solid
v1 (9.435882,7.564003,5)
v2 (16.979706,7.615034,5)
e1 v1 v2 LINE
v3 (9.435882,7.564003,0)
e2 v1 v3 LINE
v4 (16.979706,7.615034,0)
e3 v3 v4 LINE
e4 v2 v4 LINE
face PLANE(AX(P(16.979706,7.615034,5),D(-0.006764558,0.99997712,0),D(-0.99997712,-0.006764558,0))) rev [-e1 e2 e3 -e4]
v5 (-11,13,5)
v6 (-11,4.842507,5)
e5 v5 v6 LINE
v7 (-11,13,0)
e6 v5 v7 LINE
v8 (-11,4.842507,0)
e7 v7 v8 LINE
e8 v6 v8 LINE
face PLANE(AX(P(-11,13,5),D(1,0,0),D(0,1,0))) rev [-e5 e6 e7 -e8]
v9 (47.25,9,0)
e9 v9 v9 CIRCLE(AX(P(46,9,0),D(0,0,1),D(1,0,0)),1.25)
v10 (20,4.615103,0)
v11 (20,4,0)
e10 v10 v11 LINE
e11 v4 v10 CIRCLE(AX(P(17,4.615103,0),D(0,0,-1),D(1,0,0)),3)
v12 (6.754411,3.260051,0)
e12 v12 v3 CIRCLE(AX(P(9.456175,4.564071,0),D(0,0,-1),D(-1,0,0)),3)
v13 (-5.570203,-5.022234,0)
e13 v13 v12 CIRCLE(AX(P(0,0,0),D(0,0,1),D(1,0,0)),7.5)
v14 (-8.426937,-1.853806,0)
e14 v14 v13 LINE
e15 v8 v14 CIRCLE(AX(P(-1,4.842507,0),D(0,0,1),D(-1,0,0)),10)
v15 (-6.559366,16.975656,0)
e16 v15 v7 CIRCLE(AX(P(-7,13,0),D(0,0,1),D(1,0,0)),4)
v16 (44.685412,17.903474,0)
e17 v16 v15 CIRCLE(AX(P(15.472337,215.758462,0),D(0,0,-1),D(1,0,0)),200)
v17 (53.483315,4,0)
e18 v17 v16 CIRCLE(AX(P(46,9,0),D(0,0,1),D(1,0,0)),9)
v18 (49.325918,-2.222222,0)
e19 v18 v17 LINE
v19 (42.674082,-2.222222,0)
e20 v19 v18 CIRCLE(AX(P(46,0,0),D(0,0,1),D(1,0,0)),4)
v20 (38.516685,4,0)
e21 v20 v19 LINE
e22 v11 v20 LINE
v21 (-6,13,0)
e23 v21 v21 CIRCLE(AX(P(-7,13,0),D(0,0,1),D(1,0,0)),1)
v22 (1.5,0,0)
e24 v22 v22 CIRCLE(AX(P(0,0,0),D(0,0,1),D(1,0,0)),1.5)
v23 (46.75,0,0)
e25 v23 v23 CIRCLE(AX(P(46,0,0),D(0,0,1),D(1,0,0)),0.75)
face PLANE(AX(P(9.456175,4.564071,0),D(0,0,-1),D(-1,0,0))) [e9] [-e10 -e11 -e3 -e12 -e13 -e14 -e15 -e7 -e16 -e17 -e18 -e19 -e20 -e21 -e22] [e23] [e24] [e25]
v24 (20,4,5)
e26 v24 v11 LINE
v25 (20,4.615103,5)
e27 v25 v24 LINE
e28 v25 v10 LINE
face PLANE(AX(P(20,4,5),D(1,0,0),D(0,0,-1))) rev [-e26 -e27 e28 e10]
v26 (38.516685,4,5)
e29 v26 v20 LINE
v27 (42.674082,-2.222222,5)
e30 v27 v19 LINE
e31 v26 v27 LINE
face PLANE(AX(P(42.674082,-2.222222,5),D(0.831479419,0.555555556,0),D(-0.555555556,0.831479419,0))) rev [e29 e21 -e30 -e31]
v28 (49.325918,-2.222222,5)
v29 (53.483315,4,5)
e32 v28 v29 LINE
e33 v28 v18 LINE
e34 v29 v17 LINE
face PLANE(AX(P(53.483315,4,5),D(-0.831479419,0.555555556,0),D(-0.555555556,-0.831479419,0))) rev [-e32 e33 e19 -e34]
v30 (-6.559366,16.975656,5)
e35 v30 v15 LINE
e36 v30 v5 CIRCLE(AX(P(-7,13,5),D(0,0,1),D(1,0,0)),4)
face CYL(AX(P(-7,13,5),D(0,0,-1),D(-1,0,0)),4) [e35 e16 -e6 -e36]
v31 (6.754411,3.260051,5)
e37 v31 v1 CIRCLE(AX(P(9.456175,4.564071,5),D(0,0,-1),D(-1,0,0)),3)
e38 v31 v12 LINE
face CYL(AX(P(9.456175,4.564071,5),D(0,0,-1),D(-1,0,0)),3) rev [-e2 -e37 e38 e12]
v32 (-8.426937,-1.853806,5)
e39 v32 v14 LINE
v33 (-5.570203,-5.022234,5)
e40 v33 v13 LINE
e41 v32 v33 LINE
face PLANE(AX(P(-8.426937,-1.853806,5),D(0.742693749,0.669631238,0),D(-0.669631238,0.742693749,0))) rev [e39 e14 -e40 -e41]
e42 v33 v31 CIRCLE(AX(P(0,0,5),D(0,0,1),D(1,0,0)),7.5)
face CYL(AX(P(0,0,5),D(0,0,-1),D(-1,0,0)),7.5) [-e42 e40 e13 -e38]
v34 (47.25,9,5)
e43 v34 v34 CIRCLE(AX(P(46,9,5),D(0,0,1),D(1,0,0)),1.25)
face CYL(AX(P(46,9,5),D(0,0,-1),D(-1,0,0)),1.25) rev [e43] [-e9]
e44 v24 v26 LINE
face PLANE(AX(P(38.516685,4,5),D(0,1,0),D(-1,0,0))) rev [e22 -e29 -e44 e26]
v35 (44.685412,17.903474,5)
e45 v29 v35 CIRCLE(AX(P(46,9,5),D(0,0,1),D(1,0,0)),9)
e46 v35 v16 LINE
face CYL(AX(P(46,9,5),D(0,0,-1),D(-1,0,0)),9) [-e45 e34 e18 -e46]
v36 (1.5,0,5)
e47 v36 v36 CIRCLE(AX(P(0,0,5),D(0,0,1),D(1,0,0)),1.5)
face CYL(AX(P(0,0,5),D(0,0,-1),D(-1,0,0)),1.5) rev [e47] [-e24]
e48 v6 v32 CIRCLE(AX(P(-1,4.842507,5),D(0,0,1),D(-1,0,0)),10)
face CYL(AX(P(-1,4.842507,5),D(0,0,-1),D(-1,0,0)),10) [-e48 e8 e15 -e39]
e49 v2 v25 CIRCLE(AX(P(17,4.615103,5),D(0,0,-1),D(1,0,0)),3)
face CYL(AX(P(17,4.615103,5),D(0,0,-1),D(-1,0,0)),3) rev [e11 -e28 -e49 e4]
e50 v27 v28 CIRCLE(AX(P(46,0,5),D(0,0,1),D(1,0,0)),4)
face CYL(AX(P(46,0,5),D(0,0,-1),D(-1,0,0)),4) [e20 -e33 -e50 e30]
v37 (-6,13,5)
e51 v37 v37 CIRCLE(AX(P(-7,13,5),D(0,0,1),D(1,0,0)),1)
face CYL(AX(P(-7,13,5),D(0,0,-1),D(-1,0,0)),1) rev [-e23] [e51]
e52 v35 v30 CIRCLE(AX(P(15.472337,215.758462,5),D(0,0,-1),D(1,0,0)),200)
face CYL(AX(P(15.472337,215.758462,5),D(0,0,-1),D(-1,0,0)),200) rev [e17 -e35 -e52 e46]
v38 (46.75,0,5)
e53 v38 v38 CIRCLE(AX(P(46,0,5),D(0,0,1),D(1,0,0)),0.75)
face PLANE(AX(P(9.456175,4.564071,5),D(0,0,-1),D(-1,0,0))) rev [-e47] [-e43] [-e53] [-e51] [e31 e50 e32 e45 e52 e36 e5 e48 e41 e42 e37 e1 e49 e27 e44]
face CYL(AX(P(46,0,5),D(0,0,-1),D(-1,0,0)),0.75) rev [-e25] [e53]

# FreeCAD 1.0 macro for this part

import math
import FreeCAD as App
import Part
import Sketcher
Q = App.Units.Quantity

doc = App.newDocument("Part")
body = doc.addObject("PartDesign::Body", "Body")

# Sketch on XY plane
sketch1 = body.newObject("Sketcher::SketchObject", "Sketch")
sketch1.AttachmentSupport = (doc.getObject("XY_Plane"), [""])
sketch1.MapMode = "FlatFace"
sketch1.addGeometry([
    Part.LineSegment(App.Vector(49.3, -2.2, 0), App.Vector(53.5, 4, 0)),  # 0
    Part.ArcOfCircle(Part.Circle(App.Vector(46, 9, 0), App.Vector(0, 0, 1), 9), math.radians(-34), math.radians(98)),  # 1
    Part.ArcOfCircle(Part.Circle(App.Vector(15.5, 215.8, 0), App.Vector(0, 0, 1), 200), math.radians(-96.32), math.radians(-81.6)),  # 2
    Part.ArcOfCircle(Part.Circle(App.Vector(-7, 13, 0), App.Vector(0, 0, 1), 4), math.radians(84), math.radians(180)),  # 3
    Part.LineSegment(App.Vector(-11, 13, 0), App.Vector(-11, 4.8, 0)),  # 4
    Part.ArcOfCircle(Part.Circle(App.Vector(-1, 4.8, 0), App.Vector(0, 0, 1), 10), math.radians(180), math.radians(222)),  # 5
    Part.LineSegment(App.Vector(-8.4, -1.9, 0), App.Vector(-5.6, -5, 0)),  # 6
    Part.ArcOfCircle(Part.Circle(App.Vector(0, 0, 0), App.Vector(0, 0, 1), 7.5), math.radians(-138), math.radians(26)),  # 7
    Part.ArcOfCircle(Part.Circle(App.Vector(9.5, 4.6, 0), App.Vector(0, 0, 1), 3), math.radians(90), math.radians(206)),  # 8
    Part.LineSegment(App.Vector(9.4, 7.6, 0), App.Vector(17, 7.6, 0)),  # 9
    Part.ArcOfCircle(Part.Circle(App.Vector(17, 4.6, 0), App.Vector(0, 0, 1), 3), math.radians(0), math.radians(90)),  # 10
    Part.LineSegment(App.Vector(20, 4.6, 0), App.Vector(20, 4, 0)),  # 11
    Part.LineSegment(App.Vector(20, 4, 0), App.Vector(38.5, 4, 0)),  # 12
    Part.LineSegment(App.Vector(38.5, 4, 0), App.Vector(42.7, -2.2, 0)),  # 13
    Part.ArcOfCircle(Part.Circle(App.Vector(46, 0, 0), App.Vector(0, 0, 1), 4), math.radians(-146), math.radians(-34)),  # 14
    Part.Circle(App.Vector(46, 0, 0), App.Vector(0, 0, 1), 0.8),  # 15
    Part.Circle(App.Vector(0, 0, 0), App.Vector(0, 0, 1), 1.5),  # 16
    Part.Circle(App.Vector(46, 9, 0), App.Vector(0, 0, 1), 1.2),  # 17
    Part.Circle(App.Vector(-7, 13, 0), App.Vector(0, 0, 1), 1),  # 18
], False)
sketch1.addConstraint([
    Sketcher.Constraint("Tangent", 0, 2, 1, 1),
    Sketcher.Constraint("Tangent", 1, 2, 2, 2),
    Sketcher.Constraint("Tangent", 2, 1, 3, 1),
    Sketcher.Constraint("Tangent", 3, 2, 4, 1),
    Sketcher.Constraint("Tangent", 4, 2, 5, 1),
    Sketcher.Constraint("Tangent", 5, 2, 6, 1),
    Sketcher.Constraint("Tangent", 6, 2, 7, 1),
    Sketcher.Constraint("Tangent", 7, 2, 8, 2),
    Sketcher.Constraint("Tangent", 8, 1, 9, 1),
    Sketcher.Constraint("Tangent", 9, 2, 10, 2),
    Sketcher.Constraint("Tangent", 10, 1, 11, 1),
    Sketcher.Constraint("Coincident", 11, 2, 12, 1),
    Sketcher.Constraint("Coincident", 12, 2, 13, 1),
    Sketcher.Constraint("Tangent", 13, 2, 14, 1),
    Sketcher.Constraint("Tangent", 14, 2, 0, 1),
    Sketcher.Constraint("Vertical", 4),
    Sketcher.Constraint("Vertical", 11),
    Sketcher.Constraint("Horizontal", 12),
    Sketcher.Constraint("Coincident", 7, 3, -1, 1),
    Sketcher.Constraint("Coincident", 16, 3, -1, 1),
    Sketcher.Constraint("Coincident", 15, 3, 14, 3),
    Sketcher.Constraint("Coincident", 17, 3, 1, 3),
    Sketcher.Constraint("Coincident", 18, 3, 3, 3),
    Sketcher.Constraint("Equal", 8, 10),
    Sketcher.Constraint("Equal", 3, 14),
    Sketcher.Constraint("PointOnObject", 14, 3, -1),
    Sketcher.Constraint("Horizontal", 0, 2, 11, 2),
    Sketcher.Constraint("Horizontal", 13, 2, 14, 2),
    Sketcher.Constraint("Vertical", 1, 3, 14, 3),
    Sketcher.Constraint("Diameter", 16, Q("3 mm")),
    Sketcher.Constraint("Diameter", 18, Q("2 mm")),
    Sketcher.Constraint("Radius", 1, Q("9 mm")),
    Sketcher.Constraint("Radius", 2, Q("200 mm")),
    Sketcher.Constraint("Radius", 3, Q("4 mm")),
    Sketcher.Constraint("Radius", 5, Q("10 mm")),
    Sketcher.Constraint("Radius", 8, Q("3 mm")),
    Sketcher.Constraint("Diameter", 15, Q("1.5 mm")),
    Sketcher.Constraint("Diameter", 17, Q("2.5 mm")),
    Sketcher.Constraint("Radius", 7, Q("7.5 mm")),
    Sketcher.Constraint("DistanceX", -1, 1, 1, 3, Q("46 mm")),
    Sketcher.Constraint("DistanceY", -1, 1, 1, 3, Q("9 mm")),
    Sketcher.Constraint("DistanceX", 3, 3, -1, 1, Q("7 mm")),
    Sketcher.Constraint("DistanceY", -1, 1, 3, 3, Q("13 mm")),
    Sketcher.Constraint("DistanceX", -1, 1, 10, 3, Q("17 mm")),
    Sketcher.Constraint("DistanceY", 10, 3, 8, 1, Q("2.9489 mm")),
    Sketcher.Constraint("Distance", 6, Q("4.266131 mm")),
    Sketcher.Constraint("DistanceY", 11, 2, 11, 1, Q("0.615103 mm")),
])
pad1 = body.newObject("PartDesign::Pad", "Pad")
pad1.Profile = sketch1
pad1.Length = 5

doc.recompute()
